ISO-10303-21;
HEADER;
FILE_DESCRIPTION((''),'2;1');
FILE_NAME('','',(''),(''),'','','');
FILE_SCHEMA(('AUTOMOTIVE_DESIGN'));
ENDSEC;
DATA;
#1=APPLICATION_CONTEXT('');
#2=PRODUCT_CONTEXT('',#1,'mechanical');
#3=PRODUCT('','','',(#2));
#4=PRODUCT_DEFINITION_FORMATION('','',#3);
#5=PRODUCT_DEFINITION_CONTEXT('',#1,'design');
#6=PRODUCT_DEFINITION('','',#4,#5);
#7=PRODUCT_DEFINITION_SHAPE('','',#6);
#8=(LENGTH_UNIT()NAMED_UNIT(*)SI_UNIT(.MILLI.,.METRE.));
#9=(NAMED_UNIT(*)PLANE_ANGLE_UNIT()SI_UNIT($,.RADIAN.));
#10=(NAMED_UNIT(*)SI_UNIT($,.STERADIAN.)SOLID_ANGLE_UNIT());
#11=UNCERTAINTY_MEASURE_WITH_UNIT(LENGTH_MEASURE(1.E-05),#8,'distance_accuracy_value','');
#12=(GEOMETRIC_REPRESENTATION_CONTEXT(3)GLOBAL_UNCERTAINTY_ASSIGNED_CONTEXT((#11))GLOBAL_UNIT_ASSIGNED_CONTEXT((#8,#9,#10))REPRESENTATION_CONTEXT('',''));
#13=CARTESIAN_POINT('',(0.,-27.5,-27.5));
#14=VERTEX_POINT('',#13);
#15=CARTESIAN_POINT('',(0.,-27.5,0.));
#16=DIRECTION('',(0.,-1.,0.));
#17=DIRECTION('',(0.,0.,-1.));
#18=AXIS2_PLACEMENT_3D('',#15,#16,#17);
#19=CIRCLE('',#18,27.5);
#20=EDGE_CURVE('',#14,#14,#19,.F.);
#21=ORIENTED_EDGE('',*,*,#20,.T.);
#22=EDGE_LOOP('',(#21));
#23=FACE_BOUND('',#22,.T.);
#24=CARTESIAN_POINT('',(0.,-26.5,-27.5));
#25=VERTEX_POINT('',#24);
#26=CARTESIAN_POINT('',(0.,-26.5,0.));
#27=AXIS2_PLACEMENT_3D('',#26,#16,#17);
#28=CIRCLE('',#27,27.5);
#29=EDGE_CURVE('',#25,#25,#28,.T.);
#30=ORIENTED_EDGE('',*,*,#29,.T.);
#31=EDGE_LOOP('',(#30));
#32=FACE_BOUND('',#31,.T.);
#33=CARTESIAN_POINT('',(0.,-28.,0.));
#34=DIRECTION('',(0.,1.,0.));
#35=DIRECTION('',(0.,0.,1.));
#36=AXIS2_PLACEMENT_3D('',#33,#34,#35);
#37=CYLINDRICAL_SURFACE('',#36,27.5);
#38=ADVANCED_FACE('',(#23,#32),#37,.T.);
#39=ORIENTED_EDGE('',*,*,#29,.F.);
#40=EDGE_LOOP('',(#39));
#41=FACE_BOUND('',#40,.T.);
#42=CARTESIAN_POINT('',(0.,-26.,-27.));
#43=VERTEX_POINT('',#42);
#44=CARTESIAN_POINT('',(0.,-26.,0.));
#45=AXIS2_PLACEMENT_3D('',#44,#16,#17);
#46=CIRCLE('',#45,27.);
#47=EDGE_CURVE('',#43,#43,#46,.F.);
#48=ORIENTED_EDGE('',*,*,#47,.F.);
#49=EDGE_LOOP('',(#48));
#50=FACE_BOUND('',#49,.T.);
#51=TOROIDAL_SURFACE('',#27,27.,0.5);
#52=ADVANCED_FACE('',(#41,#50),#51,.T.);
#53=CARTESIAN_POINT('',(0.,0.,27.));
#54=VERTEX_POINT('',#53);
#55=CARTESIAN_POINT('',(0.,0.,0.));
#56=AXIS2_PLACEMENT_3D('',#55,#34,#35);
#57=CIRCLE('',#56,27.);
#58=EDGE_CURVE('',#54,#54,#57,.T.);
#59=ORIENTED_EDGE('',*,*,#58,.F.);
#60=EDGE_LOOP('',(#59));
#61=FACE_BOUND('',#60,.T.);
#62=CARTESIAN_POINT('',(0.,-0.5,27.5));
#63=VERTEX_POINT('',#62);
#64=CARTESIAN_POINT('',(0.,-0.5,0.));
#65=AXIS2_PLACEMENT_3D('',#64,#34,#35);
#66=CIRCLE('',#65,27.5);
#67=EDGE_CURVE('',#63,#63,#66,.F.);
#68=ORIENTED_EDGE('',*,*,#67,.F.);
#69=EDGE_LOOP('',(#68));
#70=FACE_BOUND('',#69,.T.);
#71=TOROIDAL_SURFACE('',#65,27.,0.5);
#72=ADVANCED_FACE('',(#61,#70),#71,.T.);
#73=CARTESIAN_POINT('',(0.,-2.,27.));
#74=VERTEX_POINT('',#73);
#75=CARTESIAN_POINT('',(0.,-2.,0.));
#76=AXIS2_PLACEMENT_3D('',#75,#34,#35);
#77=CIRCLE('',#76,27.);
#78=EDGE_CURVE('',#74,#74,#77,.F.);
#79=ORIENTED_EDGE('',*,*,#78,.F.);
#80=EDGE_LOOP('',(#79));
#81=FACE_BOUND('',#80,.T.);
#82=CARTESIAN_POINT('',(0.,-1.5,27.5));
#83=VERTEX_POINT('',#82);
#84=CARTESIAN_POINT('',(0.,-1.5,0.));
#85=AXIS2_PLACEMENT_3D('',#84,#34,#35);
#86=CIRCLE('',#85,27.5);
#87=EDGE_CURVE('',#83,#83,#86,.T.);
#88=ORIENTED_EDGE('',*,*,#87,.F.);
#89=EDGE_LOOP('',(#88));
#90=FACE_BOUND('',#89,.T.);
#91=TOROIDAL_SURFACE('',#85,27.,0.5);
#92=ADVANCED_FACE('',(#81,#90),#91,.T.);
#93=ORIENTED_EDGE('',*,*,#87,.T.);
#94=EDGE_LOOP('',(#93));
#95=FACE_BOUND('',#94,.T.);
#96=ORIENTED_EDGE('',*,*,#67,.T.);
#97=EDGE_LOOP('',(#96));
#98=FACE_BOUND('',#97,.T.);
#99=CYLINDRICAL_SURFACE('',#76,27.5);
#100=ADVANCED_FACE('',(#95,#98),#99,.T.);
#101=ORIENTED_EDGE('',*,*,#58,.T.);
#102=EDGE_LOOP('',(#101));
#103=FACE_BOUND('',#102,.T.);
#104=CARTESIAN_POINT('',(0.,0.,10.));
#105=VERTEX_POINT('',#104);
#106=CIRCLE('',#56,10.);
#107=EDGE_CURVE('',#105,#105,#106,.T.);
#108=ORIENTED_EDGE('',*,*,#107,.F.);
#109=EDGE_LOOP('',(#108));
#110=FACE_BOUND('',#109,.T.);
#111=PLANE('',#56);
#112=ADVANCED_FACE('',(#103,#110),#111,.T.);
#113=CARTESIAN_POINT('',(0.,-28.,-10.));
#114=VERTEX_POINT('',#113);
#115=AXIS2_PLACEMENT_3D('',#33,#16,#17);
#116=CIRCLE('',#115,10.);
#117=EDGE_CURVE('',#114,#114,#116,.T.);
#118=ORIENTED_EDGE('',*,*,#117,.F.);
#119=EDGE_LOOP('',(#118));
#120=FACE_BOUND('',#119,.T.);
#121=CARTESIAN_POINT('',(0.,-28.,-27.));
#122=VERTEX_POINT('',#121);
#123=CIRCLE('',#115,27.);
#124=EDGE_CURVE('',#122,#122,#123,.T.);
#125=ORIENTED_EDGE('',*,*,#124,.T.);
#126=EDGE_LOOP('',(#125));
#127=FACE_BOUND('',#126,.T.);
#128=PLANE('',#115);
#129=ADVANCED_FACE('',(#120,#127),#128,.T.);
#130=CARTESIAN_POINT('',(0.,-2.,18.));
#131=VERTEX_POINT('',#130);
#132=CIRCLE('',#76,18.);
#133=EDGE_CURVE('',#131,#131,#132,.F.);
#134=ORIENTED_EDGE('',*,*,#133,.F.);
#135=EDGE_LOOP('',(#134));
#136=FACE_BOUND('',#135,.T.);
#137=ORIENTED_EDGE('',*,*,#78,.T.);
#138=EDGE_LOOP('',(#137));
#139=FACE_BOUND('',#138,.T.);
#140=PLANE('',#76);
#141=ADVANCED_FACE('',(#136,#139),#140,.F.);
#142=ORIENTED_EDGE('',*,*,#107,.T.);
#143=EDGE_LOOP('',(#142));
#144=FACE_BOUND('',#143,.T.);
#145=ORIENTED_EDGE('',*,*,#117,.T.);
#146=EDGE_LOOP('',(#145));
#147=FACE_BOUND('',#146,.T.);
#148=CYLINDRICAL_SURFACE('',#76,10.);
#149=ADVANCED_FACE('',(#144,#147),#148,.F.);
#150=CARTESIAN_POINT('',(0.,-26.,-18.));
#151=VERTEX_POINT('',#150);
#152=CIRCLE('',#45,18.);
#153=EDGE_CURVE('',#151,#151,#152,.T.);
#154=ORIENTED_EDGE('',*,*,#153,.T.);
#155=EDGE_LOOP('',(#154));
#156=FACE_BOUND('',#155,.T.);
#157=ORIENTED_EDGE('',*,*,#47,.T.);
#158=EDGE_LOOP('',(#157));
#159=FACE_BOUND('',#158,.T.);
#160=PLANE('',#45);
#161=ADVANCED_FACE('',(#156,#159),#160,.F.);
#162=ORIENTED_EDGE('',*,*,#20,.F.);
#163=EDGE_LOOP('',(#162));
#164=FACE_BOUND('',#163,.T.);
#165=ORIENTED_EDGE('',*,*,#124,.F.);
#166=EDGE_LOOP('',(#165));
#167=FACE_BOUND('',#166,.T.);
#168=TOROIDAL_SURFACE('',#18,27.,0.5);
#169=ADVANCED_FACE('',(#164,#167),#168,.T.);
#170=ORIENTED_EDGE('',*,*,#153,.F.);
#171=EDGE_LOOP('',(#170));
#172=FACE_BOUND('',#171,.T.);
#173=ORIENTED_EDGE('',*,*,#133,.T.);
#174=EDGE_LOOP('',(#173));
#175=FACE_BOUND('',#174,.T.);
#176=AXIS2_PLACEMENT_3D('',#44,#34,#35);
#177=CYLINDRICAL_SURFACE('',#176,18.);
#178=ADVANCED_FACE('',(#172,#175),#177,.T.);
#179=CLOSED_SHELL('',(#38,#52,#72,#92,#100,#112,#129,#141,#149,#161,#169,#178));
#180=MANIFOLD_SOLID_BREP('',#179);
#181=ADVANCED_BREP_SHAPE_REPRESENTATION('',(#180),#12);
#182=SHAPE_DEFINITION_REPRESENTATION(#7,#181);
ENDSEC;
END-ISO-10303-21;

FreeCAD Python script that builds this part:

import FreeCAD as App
import Part
import Sketcher
from FreeCAD import Vector


def edges_at(feature, points):
    """Names of the edges that pass closest to the given points."""
    edges = feature.Shape.Edges
    near = lambda p: min(range(len(edges)), key=lambda i: edges[i].distToShape(Part.Vertex(*p))[0])
    return sorted({f"Edge{near(p) + 1}" for p in points})

doc = App.newDocument("Part")
params = doc.addObject("Spreadsheet::Sheet", "Params")
for row, (alias, value) in enumerate([
    ("sketch1_diameter", "55 mm"),
    ("sketch1_diameter2", "20 mm"),
    ("pad1_length", "2 mm"),
    ("sketch2_diameter", "36 mm"),
    ("sketch2_diameter2", "20 mm"),
    ("pad2_length", "24 mm"),
    ("sketch3_diameter", "55 mm"),
    ("sketch3_diameter2", "20 mm"),
    ("pad3_length", "2 mm"),
    ("fillet_radius", "0.5 mm"),
], start=1):
    params.set(f"A{row}", alias)
    params.set(f"B{row}", "=" + value)
    params.setAlias(f"B{row}", alias)

body = doc.addObject("PartDesign::Body", "Body")

sketch1 = body.newObject("Sketcher::SketchObject", "Sketch")
sketch1.AttachmentSupport = (doc.getObject("XZ_Plane"), [""])
sketch1.MapMode = "FlatFace"
sketch1.addGeometry([
    Part.Circle(Vector(0, 0, 0), Vector(0, 0, 1), 28),
    Part.Circle(Vector(0, 0, 0), Vector(0, 0, 1), 10),
], False)
sketch1.addConstraint([
    Sketcher.Constraint("Coincident", 0, 3, -1, 1),
    Sketcher.Constraint("Coincident", 1, 3, -1, 1),
    Sketcher.Constraint("Diameter", 0, 55.0),
    Sketcher.Constraint("Diameter", 1, 20.0),
])
sketch1.setExpression("Constraints[2]", "Params.sketch1_diameter")
sketch1.setExpression("Constraints[3]", "Params.sketch1_diameter2")
pad1 = body.newObject("PartDesign::Pad", "Pad")
pad1.Profile = sketch1
pad1.setExpression("Length", "Params.pad1_length")

sketch2 = body.newObject("Sketcher::SketchObject", "Sketch001")
sketch2.AttachmentSupport = (doc.getObject("XZ_Plane"), [""])
sketch2.MapMode = "FlatFace"
sketch2.AttachmentOffset = App.Placement(Vector(0, 0, 2), App.Rotation())
sketch2.addGeometry([
    Part.Circle(Vector(0, 0, 0), Vector(0, 0, 1), 18),
    Part.Circle(Vector(0, 0, 0), Vector(0, 0, 1), 10),
], False)
sketch2.addConstraint([
    Sketcher.Constraint("Coincident", 0, 3, -1, 1),
    Sketcher.Constraint("Coincident", 1, 3, -1, 1),
    Sketcher.Constraint("Diameter", 0, 36.0),
    Sketcher.Constraint("Diameter", 1, 20.0),
])
sketch2.setExpression("Constraints[2]", "Params.sketch2_diameter")
sketch2.setExpression("Constraints[3]", "Params.sketch2_diameter2")
pad2 = body.newObject("PartDesign::Pad", "Pad001")
pad2.Profile = sketch2
pad2.setExpression("Length", "Params.pad2_length")

sketch3 = body.newObject("Sketcher::SketchObject", "Sketch002")
sketch3.AttachmentSupport = (doc.getObject("XZ_Plane"), [""])
sketch3.MapMode = "FlatFace"
sketch3.AttachmentOffset = App.Placement(Vector(0, 0, 26), App.Rotation())
sketch3.addGeometry([
    Part.Circle(Vector(0, 0, 0), Vector(0, 0, 1), 28),
    Part.Circle(Vector(0, 0, 0), Vector(0, 0, 1), 10),
], False)
sketch3.addConstraint([
    Sketcher.Constraint("Coincident", 0, 3, -1, 1),
    Sketcher.Constraint("Coincident", 1, 3, -1, 1),
    Sketcher.Constraint("Diameter", 0, 55.0),
    Sketcher.Constraint("Diameter", 1, 20.0),
])
sketch3.setExpression("Constraints[2]", "Params.sketch3_diameter")
sketch3.setExpression("Constraints[3]", "Params.sketch3_diameter2")
pad3 = body.newObject("PartDesign::Pad", "Pad002")
pad3.Profile = sketch3
pad3.setExpression("Length", "Params.pad3_length")
doc.recompute()

fillet = body.newObject("PartDesign::Fillet", "Fillet")
fillet.Base = (pad3, edges_at(pad3, [
    (0, -28, -27.5),
    (0, -26, -27.5),
    (0, 0, -27.5),
    (0, -2, -27.5),
]))
fillet.setExpression("Radius", "Params.fillet_radius")

doc.recompute()
